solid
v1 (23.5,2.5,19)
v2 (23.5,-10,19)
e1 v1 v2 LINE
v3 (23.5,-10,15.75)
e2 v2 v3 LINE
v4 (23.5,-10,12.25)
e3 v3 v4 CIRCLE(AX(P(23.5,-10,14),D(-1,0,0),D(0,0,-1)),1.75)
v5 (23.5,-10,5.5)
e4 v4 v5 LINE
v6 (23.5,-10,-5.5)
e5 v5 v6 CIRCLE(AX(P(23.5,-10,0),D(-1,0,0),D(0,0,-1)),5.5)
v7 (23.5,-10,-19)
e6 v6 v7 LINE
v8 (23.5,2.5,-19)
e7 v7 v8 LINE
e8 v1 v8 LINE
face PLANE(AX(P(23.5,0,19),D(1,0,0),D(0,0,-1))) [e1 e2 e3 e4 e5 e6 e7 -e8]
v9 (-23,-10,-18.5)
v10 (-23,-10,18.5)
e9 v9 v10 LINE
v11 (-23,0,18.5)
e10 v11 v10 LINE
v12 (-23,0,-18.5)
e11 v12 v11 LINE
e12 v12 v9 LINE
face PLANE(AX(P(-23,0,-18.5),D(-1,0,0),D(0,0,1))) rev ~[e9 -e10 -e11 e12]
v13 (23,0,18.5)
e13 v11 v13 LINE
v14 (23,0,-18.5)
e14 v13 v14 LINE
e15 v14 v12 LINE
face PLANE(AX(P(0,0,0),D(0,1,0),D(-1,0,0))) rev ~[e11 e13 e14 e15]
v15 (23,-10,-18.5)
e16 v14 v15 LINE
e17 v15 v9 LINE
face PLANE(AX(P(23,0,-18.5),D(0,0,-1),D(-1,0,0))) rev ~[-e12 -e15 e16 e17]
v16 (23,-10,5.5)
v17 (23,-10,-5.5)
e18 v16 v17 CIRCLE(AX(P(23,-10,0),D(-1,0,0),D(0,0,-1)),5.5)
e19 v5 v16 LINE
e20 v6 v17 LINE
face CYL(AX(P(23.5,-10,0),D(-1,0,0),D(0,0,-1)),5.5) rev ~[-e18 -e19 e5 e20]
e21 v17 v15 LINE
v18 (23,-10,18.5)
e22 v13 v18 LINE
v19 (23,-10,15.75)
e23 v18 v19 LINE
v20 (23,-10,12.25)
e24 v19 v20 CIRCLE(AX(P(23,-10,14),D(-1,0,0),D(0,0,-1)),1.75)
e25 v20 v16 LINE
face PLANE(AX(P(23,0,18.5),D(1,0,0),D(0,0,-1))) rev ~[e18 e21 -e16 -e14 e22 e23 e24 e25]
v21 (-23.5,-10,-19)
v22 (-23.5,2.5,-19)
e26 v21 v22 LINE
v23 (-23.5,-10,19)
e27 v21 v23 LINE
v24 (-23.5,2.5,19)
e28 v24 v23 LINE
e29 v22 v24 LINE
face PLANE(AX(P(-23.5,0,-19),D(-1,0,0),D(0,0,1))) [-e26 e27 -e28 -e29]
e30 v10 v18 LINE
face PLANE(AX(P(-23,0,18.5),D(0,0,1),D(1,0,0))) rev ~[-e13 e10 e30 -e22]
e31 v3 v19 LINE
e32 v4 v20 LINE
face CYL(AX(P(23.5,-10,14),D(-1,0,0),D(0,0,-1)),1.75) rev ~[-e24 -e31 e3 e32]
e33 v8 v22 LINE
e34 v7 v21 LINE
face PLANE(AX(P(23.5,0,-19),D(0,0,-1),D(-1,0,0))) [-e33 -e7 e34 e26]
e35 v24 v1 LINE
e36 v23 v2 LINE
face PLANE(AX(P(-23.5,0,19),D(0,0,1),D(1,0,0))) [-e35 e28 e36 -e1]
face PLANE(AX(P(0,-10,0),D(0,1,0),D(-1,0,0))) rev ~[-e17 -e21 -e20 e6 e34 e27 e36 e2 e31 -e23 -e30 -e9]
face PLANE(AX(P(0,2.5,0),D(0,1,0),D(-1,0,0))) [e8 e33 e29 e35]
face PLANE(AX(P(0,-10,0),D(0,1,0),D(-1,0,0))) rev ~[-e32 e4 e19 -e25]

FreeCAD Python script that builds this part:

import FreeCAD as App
import Part
import Sketcher
Q = App.Units.Quantity

doc = App.newDocument("Part")
params = doc.addObject("Spreadsheet::Sheet", "Params")
for row, (alias, value) in enumerate([
    ("sketch1_width", "47 mm"),
    ("sketch1_height", "38 mm"),
    ("pad1_length", "2.5 mm"),
    ("sketch2_width", "47 mm"),
    ("sketch2_width2", "46 mm"),
    ("sketch2_height", "38 mm"),
    ("sketch2_height2", "37 mm"),
    ("pad2_length", "10 mm"),
    ("sketch3_diameter", "3.5 mm"),
    ("hole_diameter", "3.5 mm"),
    ("hole_depth", "8 mm"),
    ("sketch4_diameter", "11 mm"),
    ("hole2_diameter", "11 mm"),
    ("hole2_depth", "8 mm"),
], start=1):
    params.set(f"A{row}", alias)
    params.set(f"B{row}", "=" + value)
    params.setAlias(f"B{row}", alias)

body = doc.addObject("PartDesign::Body", "Body")

sketch1 = doc.addObject("Sketcher::SketchObject", "Sketch")
body.addObject(sketch1)
sketch1.AttachmentSupport = (doc.XZ_Plane, [""])
sketch1.MapMode = "FlatFace"
sketch1.addGeometry(Part.LineSegment(App.Vector(24, 19, 0), App.Vector(24, -19, 0)), False)
sketch1.addGeometry(Part.LineSegment(App.Vector(24, -19, 0), App.Vector(-24, -19, 0)), False)
sketch1.addGeometry(Part.LineSegment(App.Vector(-24, -19, 0), App.Vector(-24, 19, 0)), False)
sketch1.addGeometry(Part.LineSegment(App.Vector(-24, 19, 0), App.Vector(24, 19, 0)), False)
sketch1.addConstraint(Sketcher.Constraint("Coincident", 0, 2, 1, 1))
sketch1.addConstraint(Sketcher.Constraint("Coincident", 1, 2, 2, 1))
sketch1.addConstraint(Sketcher.Constraint("Coincident", 2, 2, 3, 1))
sketch1.addConstraint(Sketcher.Constraint("Coincident", 3, 2, 0, 1))
sketch1.addConstraint(Sketcher.Constraint("Vertical", 0))
sketch1.addConstraint(Sketcher.Constraint("Horizontal", 1))
sketch1.addConstraint(Sketcher.Constraint("Vertical", 2))
sketch1.addConstraint(Sketcher.Constraint("Horizontal", 3))
sketch1.addConstraint(Sketcher.Constraint("Symmetric", 0, 2, 2, 2, -1, 1))
sketch1.addConstraint(Sketcher.Constraint("DistanceX", 1, 2, 1, 1, Q("47 mm")))
sketch1.addConstraint(Sketcher.Constraint("DistanceY", 0, 2, 0, 1, Q("38 mm")))
sketch1.setExpression("Constraints[9]", "Params.sketch1_width")
sketch1.setExpression("Constraints[10]", "Params.sketch1_height")
pad1 = doc.addObject("PartDesign::Pad", "Pad")
body.addObject(pad1)
pad1.Profile = sketch1
pad1.setExpression("Length", "Params.pad1_length")
pad1.Reversed = True

sketch2 = doc.addObject("Sketcher::SketchObject", "Sketch001")
body.addObject(sketch2)
sketch2.AttachmentSupport = (doc.XZ_Plane, [""])
sketch2.MapMode = "FlatFace"
sketch2.addGeometry(Part.LineSegment(App.Vector(24, 19, 0), App.Vector(24, -19, 0)), False)
sketch2.addGeometry(Part.LineSegment(App.Vector(24, -19, 0), App.Vector(-24, -19, 0)), False)
sketch2.addGeometry(Part.LineSegment(App.Vector(-24, -19, 0), App.Vector(-24, 19, 0)), False)
sketch2.addGeometry(Part.LineSegment(App.Vector(-24, 19, 0), App.Vector(24, 19, 0)), False)
sketch2.addGeometry(Part.LineSegment(App.Vector(-23, -18, 0), App.Vector(23, -18, 0)), False)
sketch2.addGeometry(Part.LineSegment(App.Vector(23, -18, 0), App.Vector(23, 18, 0)), False)
sketch2.addGeometry(Part.LineSegment(App.Vector(23, 18, 0), App.Vector(-23, 18, 0)), False)
sketch2.addGeometry(Part.LineSegment(App.Vector(-23, 18, 0), App.Vector(-23, -18, 0)), False)
sketch2.addConstraint(Sketcher.Constraint("Coincident", 0, 2, 1, 1))
sketch2.addConstraint(Sketcher.Constraint("Coincident", 1, 2, 2, 1))
sketch2.addConstraint(Sketcher.Constraint("Coincident", 2, 2, 3, 1))
sketch2.addConstraint(Sketcher.Constraint("Coincident", 3, 2, 0, 1))
sketch2.addConstraint(Sketcher.Constraint("Coincident", 4, 2, 5, 1))
sketch2.addConstraint(Sketcher.Constraint("Coincident", 5, 2, 6, 1))
sketch2.addConstraint(Sketcher.Constraint("Coincident", 6, 2, 7, 1))
sketch2.addConstraint(Sketcher.Constraint("Coincident", 7, 2, 4, 1))
sketch2.addConstraint(Sketcher.Constraint("Vertical", 0))
sketch2.addConstraint(Sketcher.Constraint("Horizontal", 1))
sketch2.addConstraint(Sketcher.Constraint("Vertical", 2))
sketch2.addConstraint(Sketcher.Constraint("Horizontal", 3))
sketch2.addConstraint(Sketcher.Constraint("Horizontal", 4))
sketch2.addConstraint(Sketcher.Constraint("Vertical", 5))
sketch2.addConstraint(Sketcher.Constraint("Horizontal", 6))
sketch2.addConstraint(Sketcher.Constraint("Vertical", 7))
sketch2.addConstraint(Sketcher.Constraint("Symmetric", 0, 2, 2, 2, -1, 1))
sketch2.addConstraint(Sketcher.Constraint("Symmetric", 4, 2, 6, 2, -1, 1))
sketch2.addConstraint(Sketcher.Constraint("DistanceX", 1, 2, 1, 1, Q("47 mm")))
sketch2.addConstraint(Sketcher.Constraint("DistanceX", 4, 1, 4, 2, Q("46 mm")))
sketch2.addConstraint(Sketcher.Constraint("DistanceY", 0, 2, 0, 1, Q("38 mm")))
sketch2.addConstraint(Sketcher.Constraint("DistanceY", 5, 1, 5, 2, Q("37 mm")))
sketch2.setExpression("Constraints[18]", "Params.sketch2_width")
sketch2.setExpression("Constraints[19]", "Params.sketch2_width2")
sketch2.setExpression("Constraints[20]", "Params.sketch2_height")
sketch2.setExpression("Constraints[21]", "Params.sketch2_height2")
pad2 = doc.addObject("PartDesign::Pad", "Pad001")
body.addObject(pad2)
pad2.Profile = sketch2
pad2.setExpression("Length", "Params.pad2_length")

sketch3 = doc.addObject("Sketcher::SketchObject", "Sketch002")
body.addObject(sketch3)
sketch3.AttachmentSupport = (doc.YZ_Plane, [""])
sketch3.MapMode = "FlatFace"
sketch3.AttachmentOffset = App.Placement(App.Vector(0, 0, 23.5), App.Rotation())
sketch3.addGeometry(Part.Circle(App.Vector(-10, 14, 0), App.Vector(0, 0, 1), 1.8), False)
sketch3.addConstraint(Sketcher.Constraint("Diameter", 0, Q("3.5 mm")))
sketch3.addConstraint(Sketcher.Constraint("DistanceX", 0, 3, -1, 1, Q("10 mm")))
sketch3.addConstraint(Sketcher.Constraint("DistanceY", -1, 1, 0, 3, Q("14 mm")))
sketch3.setExpression("Constraints[0]", "Params.sketch3_diameter")
doc.recompute()
hole = doc.addObject("PartDesign::Hole", "Hole")
body.addObject(hole)
hole.Profile = sketch3
hole.ThreadType = "None"
hole.setExpression("Diameter", "Params.hole_diameter")
hole.DepthType = "Dimension"
hole.setExpression("Depth", "Params.hole_depth")
hole.DrillPoint = "Flat"

sketch4 = doc.addObject("Sketcher::SketchObject", "Sketch003")
body.addObject(sketch4)
sketch4.AttachmentSupport = (doc.YZ_Plane, [""])
sketch4.MapMode = "FlatFace"
sketch4.AttachmentOffset = App.Placement(App.Vector(0, 0, 23.5), App.Rotation())
sketch4.addGeometry(Part.Circle(App.Vector(-10, 0, 0), App.Vector(0, 0, 1), 6), False)
sketch4.addConstraint(Sketcher.Constraint("PointOnObject", 0, 3, -1))
sketch4.addConstraint(Sketcher.Constraint("Diameter", 0, Q("11 mm")))
sketch4.addConstraint(Sketcher.Constraint("DistanceX", 0, 3, -1, 1, Q("10 mm")))
sketch4.setExpression("Constraints[1]", "Params.sketch4_diameter")
doc.recompute()
hole2 = doc.addObject("PartDesign::Hole", "Hole001")
body.addObject(hole2)
hole2.Profile = sketch4
hole2.ThreadType = "None"
hole2.setExpression("Diameter", "Params.hole2_diameter")
hole2.DepthType = "Dimension"
hole2.setExpression("Depth", "Params.hole2_depth")
hole2.DrillPoint = "Flat"

doc.recompute()
